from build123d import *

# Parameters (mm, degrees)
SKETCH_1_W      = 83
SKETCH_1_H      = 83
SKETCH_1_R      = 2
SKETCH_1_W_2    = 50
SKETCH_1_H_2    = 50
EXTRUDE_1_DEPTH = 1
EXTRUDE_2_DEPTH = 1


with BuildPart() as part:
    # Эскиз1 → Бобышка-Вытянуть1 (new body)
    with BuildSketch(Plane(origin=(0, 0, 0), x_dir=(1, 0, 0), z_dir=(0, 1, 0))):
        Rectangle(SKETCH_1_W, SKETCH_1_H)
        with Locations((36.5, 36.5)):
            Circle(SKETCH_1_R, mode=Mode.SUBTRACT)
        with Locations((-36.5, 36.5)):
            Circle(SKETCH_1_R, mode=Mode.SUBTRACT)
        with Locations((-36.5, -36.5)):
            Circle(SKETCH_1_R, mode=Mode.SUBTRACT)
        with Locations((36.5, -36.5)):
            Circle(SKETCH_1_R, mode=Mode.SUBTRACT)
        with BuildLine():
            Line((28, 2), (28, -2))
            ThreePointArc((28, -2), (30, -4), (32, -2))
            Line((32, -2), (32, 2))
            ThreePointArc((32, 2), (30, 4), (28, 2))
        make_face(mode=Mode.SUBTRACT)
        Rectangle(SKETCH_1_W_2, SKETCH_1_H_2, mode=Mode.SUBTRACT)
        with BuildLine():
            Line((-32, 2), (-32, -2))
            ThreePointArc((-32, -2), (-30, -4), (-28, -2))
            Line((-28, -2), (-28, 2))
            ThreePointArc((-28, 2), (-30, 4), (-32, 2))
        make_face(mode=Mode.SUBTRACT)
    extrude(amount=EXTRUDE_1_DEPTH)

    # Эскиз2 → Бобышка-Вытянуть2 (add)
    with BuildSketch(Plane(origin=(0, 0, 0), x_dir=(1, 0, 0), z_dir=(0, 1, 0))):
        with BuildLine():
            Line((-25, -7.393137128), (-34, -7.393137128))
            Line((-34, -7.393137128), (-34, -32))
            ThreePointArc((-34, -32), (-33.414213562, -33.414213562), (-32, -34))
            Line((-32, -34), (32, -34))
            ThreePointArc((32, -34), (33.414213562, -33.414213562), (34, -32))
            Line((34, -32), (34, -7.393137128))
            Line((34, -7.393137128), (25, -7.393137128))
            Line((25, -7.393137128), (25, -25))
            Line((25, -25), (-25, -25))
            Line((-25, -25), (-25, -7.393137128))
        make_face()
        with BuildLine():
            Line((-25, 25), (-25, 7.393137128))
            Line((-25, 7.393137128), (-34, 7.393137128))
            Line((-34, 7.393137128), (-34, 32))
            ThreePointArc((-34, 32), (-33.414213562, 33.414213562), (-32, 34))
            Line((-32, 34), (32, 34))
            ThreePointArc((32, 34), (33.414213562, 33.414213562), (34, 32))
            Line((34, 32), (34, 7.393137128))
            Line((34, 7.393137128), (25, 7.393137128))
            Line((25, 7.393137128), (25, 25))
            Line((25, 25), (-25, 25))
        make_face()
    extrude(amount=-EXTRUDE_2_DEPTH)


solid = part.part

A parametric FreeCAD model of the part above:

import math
import FreeCAD as App
import Part
import Sketcher
from FreeCAD import Vector
Q = App.Units.Quantity


def add_polygon(sketch, points):
    """Adds a closed chain of lines whose ends are joined by coincident constraints."""
    first, n = sketch.GeometryCount, len(points)
    for a, b in zip(points, points[1:] + points[:1]):
        sketch.addGeometry(Part.LineSegment(App.Vector(*a, 0), App.Vector(*b, 0)), False)
    for i in range(n):
        sketch.addConstraint(Sketcher.Constraint("Coincident", first + i, 2, first + (i + 1) % n, 1))

doc = App.newDocument("Part")
body = doc.addObject("PartDesign::Body", "Body")

# Sketch on XZ plane
sketch1 = doc.addObject("Sketcher::SketchObject", "Sketch")
body.addObject(sketch1)
sketch1.AttachmentSupport = (doc.XZ_Plane, [""])
sketch1.MapMode = "FlatFace"
add_polygon(sketch1, [(-41.5, -41.5), (-41.5, 41.5), (41.5, 41.5), (41.5, -41.5)])  # lines 0-3
sketch1.addGeometry(Part.Circle(Vector(-36.5, 36.5, 0), Vector(0, 0, 1), 2), False)  # 4
sketch1.addGeometry(Part.Circle(Vector(36.5, 36.5, 0), Vector(0, 0, 1), 2), False)  # 5
sketch1.addGeometry(Part.LineSegment(Vector(-32, 2, 0), Vector(-32, -2, 0)), False)  # 6
sketch1.addGeometry(Part.ArcOfCircle(Part.Circle(Vector(-30, -2, 0), Vector(0, 0, 1), 2), math.radians(180), math.radians(360)), False)  # 7
sketch1.addGeometry(Part.LineSegment(Vector(-28, -2, 0), Vector(-28, 2, 0)), False)  # 8
sketch1.addGeometry(Part.ArcOfCircle(Part.Circle(Vector(-30, 2, 0), Vector(0, 0, 1), 2), math.radians(0), math.radians(180)), False)  # 9
sketch1.addGeometry(Part.Circle(Vector(-36.5, -36.5, 0), Vector(0, 0, 1), 2), False)  # 10
add_polygon(sketch1, [(25, 25), (-25, 25), (-25, -25), (25, -25)])  # lines 11-14
sketch1.addGeometry(Part.LineSegment(Vector(28, 2, 0), Vector(28, -2, 0)), False)  # 15
sketch1.addGeometry(Part.ArcOfCircle(Part.Circle(Vector(30, -2, 0), Vector(0, 0, 1), 2), math.radians(180), math.radians(360)), False)  # 16
sketch1.addGeometry(Part.LineSegment(Vector(32, -2, 0), Vector(32, 2, 0)), False)  # 17
sketch1.addGeometry(Part.ArcOfCircle(Part.Circle(Vector(30, 2, 0), Vector(0, 0, 1), 2), math.radians(0), math.radians(180)), False)  # 18
sketch1.addGeometry(Part.Circle(Vector(36.5, -36.5, 0), Vector(0, 0, 1), 2), False)  # 19
sketch1.addConstraint([
    Sketcher.Constraint("Tangent", 6, 2, 7, 1),
    Sketcher.Constraint("Tangent", 7, 2, 8, 1),
    Sketcher.Constraint("Tangent", 8, 2, 9, 1),
    Sketcher.Constraint("Tangent", 9, 2, 6, 1),
    Sketcher.Constraint("Tangent", 15, 2, 16, 1),
    Sketcher.Constraint("Tangent", 16, 2, 17, 1),
    Sketcher.Constraint("Tangent", 17, 2, 18, 1),
    Sketcher.Constraint("Tangent", 18, 2, 15, 1),
    Sketcher.Constraint("Vertical", 0),
    Sketcher.Constraint("Horizontal", 1),
    Sketcher.Constraint("Vertical", 2),
    Sketcher.Constraint("Horizontal", 3),
    Sketcher.Constraint("Vertical", 6),
    Sketcher.Constraint("Vertical", 8),
    Sketcher.Constraint("Horizontal", 11),
    Sketcher.Constraint("Vertical", 12),
    Sketcher.Constraint("Horizontal", 13),
    Sketcher.Constraint("Vertical", 14),
    Sketcher.Constraint("Vertical", 15),
    Sketcher.Constraint("Vertical", 17),
    Sketcher.Constraint("Equal", 4, 5),
    Sketcher.Constraint("Equal", 5, 7),
    Sketcher.Constraint("Equal", 9, 10),
    Sketcher.Constraint("Equal", 10, 16),
    Sketcher.Constraint("Equal", 18, 19),
    Sketcher.Constraint("Symmetric", 5, 3, 10, 3, -1, 1),
    Sketcher.Constraint("Symmetric", 9, 3, 16, 3, -1, 1),
    Sketcher.Constraint("Symmetric", 4, 3, 19, 3, -1, 1),
    Sketcher.Constraint("Symmetric", 0, 2, 2, 2, -1, 1),
    Sketcher.Constraint("Symmetric", 11, 2, 13, 2, -1, 1),
    Sketcher.Constraint("Symmetric", 4, 3, 5, 3, -2),
    Sketcher.Constraint("Horizontal", 7, 3, 16, 3),
    Sketcher.Constraint("Horizontal", 9, 3, 18, 3),
    Sketcher.Constraint("Equal", 3, 0),
    Sketcher.Constraint("Equal", 13, 12),
    Sketcher.Constraint("Diameter", 4, Q("4 mm")),
    Sketcher.Constraint("DistanceX", 1, 1, 1, 2, Q("83 mm")),
    Sketcher.Constraint("DistanceX", 11, 2, 11, 1, Q("50 mm")),
    Sketcher.Constraint("DistanceY", 6, 2, 6, 1, Q("4 mm")),
    Sketcher.Constraint("DistanceX", 7, 3, -1, 1, Q("30 mm")),
    Sketcher.Constraint("DistanceX", 4, 3, 5, 3, Q("73 mm")),
    Sketcher.Constraint("DistanceY", 10, 3, 4, 3, Q("73 mm")),
])
pad1 = doc.addObject("PartDesign::Pad", "Pad")
body.addObject(pad1)
pad1.Profile = sketch1
pad1.Length = 1
pad1.Reversed = True

# Sketch on XZ plane
sketch2 = doc.addObject("Sketcher::SketchObject", "Sketch001")
body.addObject(sketch2)
sketch2.AttachmentSupport = (doc.XZ_Plane, [""])
sketch2.MapMode = "FlatFace"
sketch2.addGeometry([
    Part.LineSegment(Vector(-25, 7.393137, 0), Vector(-34, 7.393137, 0)),  # 0
    Part.LineSegment(Vector(-34, 7.393137, 0), Vector(-34, 32, 0)),  # 1
    Part.ArcOfCircle(Part.Circle(Vector(-32, 32, 0), Vector(0, 0, 1), 2), math.radians(90), math.radians(180)),  # 2
    Part.LineSegment(Vector(-32, 34, 0), Vector(32, 34, 0)),  # 3
    Part.ArcOfCircle(Part.Circle(Vector(32, 32, 0), Vector(0, 0, 1), 2), math.radians(0), math.radians(90)),  # 4
    Part.LineSegment(Vector(34, 32, 0), Vector(34, 7.393137, 0)),  # 5
    Part.LineSegment(Vector(34, 7.393137, 0), Vector(25, 7.393137, 0)),  # 6
    Part.LineSegment(Vector(25, 7.393137, 0), Vector(25, 25, 0)),  # 7
    Part.LineSegment(Vector(25, 25, 0), Vector(-25, 25, 0)),  # 8
    Part.LineSegment(Vector(-25, 25, 0), Vector(-25, 7.393137, 0)),  # 9
    Part.LineSegment(Vector(-25, -7.393137, 0), Vector(-25, -25, 0)),  # 10
    Part.LineSegment(Vector(-25, -25, 0), Vector(25, -25, 0)),  # 11
    Part.LineSegment(Vector(25, -25, 0), Vector(25, -7.393137, 0)),  # 12
    Part.LineSegment(Vector(25, -7.393137, 0), Vector(34, -7.393137, 0)),  # 13
    Part.LineSegment(Vector(34, -7.393137, 0), Vector(34, -32, 0)),  # 14
    Part.ArcOfCircle(Part.Circle(Vector(32, -32, 0), Vector(0, 0, 1), 2), math.radians(-90), math.radians(0)),  # 15
    Part.LineSegment(Vector(32, -34, 0), Vector(-32, -34, 0)),  # 16
    Part.ArcOfCircle(Part.Circle(Vector(-32, -32, 0), Vector(0, 0, 1), 2), math.radians(-180), math.radians(-90)),  # 17
    Part.LineSegment(Vector(-34, -32, 0), Vector(-34, -7.393137, 0)),  # 18
    Part.LineSegment(Vector(-34, -7.393137, 0), Vector(-25, -7.393137, 0)),  # 19
], False)
sketch2.addConstraint([
    Sketcher.Constraint("Coincident", 0, 2, 1, 1),
    Sketcher.Constraint("Tangent", 1, 2, 2, 2),
    Sketcher.Constraint("Tangent", 2, 1, 3, 1),
    Sketcher.Constraint("Tangent", 3, 2, 4, 2),
    Sketcher.Constraint("Tangent", 4, 1, 5, 1),
    Sketcher.Constraint("Coincident", 5, 2, 6, 1),
    Sketcher.Constraint("Coincident", 6, 2, 7, 1),
    Sketcher.Constraint("Coincident", 7, 2, 8, 1),
    Sketcher.Constraint("Coincident", 8, 2, 9, 1),
    Sketcher.Constraint("Coincident", 9, 2, 0, 1),
    Sketcher.Constraint("Coincident", 10, 2, 11, 1),
    Sketcher.Constraint("Coincident", 11, 2, 12, 1),
    Sketcher.Constraint("Coincident", 12, 2, 13, 1),
    Sketcher.Constraint("Coincident", 13, 2, 14, 1),
    Sketcher.Constraint("Tangent", 14, 2, 15, 2),
    Sketcher.Constraint("Tangent", 15, 1, 16, 1),
    Sketcher.Constraint("Tangent", 16, 2, 17, 2),
    Sketcher.Constraint("Tangent", 17, 1, 18, 1),
    Sketcher.Constraint("Coincident", 18, 2, 19, 1),
    Sketcher.Constraint("Coincident", 19, 2, 10, 1),
    Sketcher.Constraint("Horizontal", 0),
    Sketcher.Constraint("Vertical", 1),
    Sketcher.Constraint("Horizontal", 3),
    Sketcher.Constraint("Vertical", 5),
    Sketcher.Constraint("Horizontal", 6),
    Sketcher.Constraint("Vertical", 7),
    Sketcher.Constraint("Horizontal", 8),
    Sketcher.Constraint("Vertical", 9),
    Sketcher.Constraint("Vertical", 10),
    Sketcher.Constraint("Horizontal", 11),
    Sketcher.Constraint("Vertical", 12),
    Sketcher.Constraint("Horizontal", 13),
    Sketcher.Constraint("Vertical", 14),
    Sketcher.Constraint("Horizontal", 16),
    Sketcher.Constraint("Vertical", 18),
    Sketcher.Constraint("Horizontal", 19),
    Sketcher.Constraint("Equal", 2, 4),
    Sketcher.Constraint("Equal", 4, 15),
    Sketcher.Constraint("Equal", 15, 17),
    Sketcher.Constraint("Symmetric", 2, 3, 15, 3, -1, 1),
    Sketcher.Constraint("Symmetric", 7, 2, 10, 2, -1, 1),
    Sketcher.Constraint("Symmetric", 9, 2, 12, 2, -1, 1),
    Sketcher.Constraint("Symmetric", 5, 2, 18, 2, -1, 1),
    Sketcher.Constraint("Symmetric", 0, 2, 5, 2, -2),
    Sketcher.Constraint("Vertical", 9, 2, 10, 2),
    Sketcher.Constraint("Radius", 2, Q("2 mm")),
    Sketcher.Constraint("DistanceX", 0, 2, 0, 1, Q("9 mm")),
    Sketcher.Constraint("DistanceX", 3, 1, 3, 2, Q("64 mm")),
    Sketcher.Constraint("DistanceY", -1, 1, 2, 3, Q("32 mm")),
    Sketcher.Constraint("DistanceY", -1, 1, 7, 2, Q("25 mm")),
    Sketcher.Constraint("DistanceY", 1, 1, 1, 2, Q("24.606863 mm")),
])
pad2 = doc.addObject("PartDesign::Pad", "Pad001")
body.addObject(pad2)
pad2.Profile = sketch2
pad2.Length = 1

doc.recompute()
